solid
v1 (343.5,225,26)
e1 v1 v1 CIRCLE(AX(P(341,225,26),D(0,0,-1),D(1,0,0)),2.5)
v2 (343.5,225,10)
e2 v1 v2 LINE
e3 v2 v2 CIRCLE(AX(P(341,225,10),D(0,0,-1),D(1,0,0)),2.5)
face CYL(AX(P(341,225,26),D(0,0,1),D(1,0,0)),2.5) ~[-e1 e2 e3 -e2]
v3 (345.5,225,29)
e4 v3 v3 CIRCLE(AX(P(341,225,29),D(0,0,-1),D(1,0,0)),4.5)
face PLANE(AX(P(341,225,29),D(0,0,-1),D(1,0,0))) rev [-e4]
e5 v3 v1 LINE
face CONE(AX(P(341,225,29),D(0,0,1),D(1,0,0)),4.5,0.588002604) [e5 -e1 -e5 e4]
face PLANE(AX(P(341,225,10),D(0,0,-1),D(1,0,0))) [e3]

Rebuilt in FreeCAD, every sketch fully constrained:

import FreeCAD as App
import Part
import Sketcher
from FreeCAD import Vector

doc = App.newDocument("Part")
body = doc.addObject("PartDesign::Body", "Body")

# Sketch on XZ plane
sketch1 = body.newObject("Sketcher::SketchObject", "Sketch")
sketch1.AttachmentSupport = (doc.getObject("XZ_Plane"), [""])
sketch1.MapMode = "FlatFace"
sketch1.addGeometry(Part.LineSegment(Vector(0, -3, 0), Vector(4.5, -3, 0)), False)
sketch1.addGeometry(Part.LineSegment(Vector(4.5, -3, 0), Vector(2.5, 0, 0)), False)
sketch1.addGeometry(Part.LineSegment(Vector(2.5, 0, 0), Vector(0, 0, 0)), False)
sketch1.addGeometry(Part.LineSegment(Vector(0, 0, 0), Vector(0, -3, 0)), False)
sketch1.addConstraint(Sketcher.Constraint("Coincident", 0, 2, 1, 1))
sketch1.addConstraint(Sketcher.Constraint("Coincident", 1, 2, 2, 1))
sketch1.addConstraint(Sketcher.Constraint("Coincident", 2, 2, 3, 1))
sketch1.addConstraint(Sketcher.Constraint("Coincident", 3, 2, 0, 1))
sketch1.addConstraint(Sketcher.Constraint("Horizontal", 0))
sketch1.addConstraint(Sketcher.Constraint("Horizontal", 2))
sketch1.addConstraint(Sketcher.Constraint("Vertical", 3))
sketch1.addConstraint(Sketcher.Constraint("Coincident", 2, 2, -1, 1))
sketch1.addConstraint(Sketcher.Constraint("DistanceY", 3, 2, 3, 1, 3.0))
sketch1.addConstraint(Sketcher.Constraint("DistanceX", 0, 1, 0, 2, 4.5))
sketch1.addConstraint(Sketcher.Constraint("DistanceX", 2, 2, 2, 1, 2.5))
revolution = body.newObject("PartDesign::Revolution", "Revolution")
revolution.Profile = sketch1
revolution.ReferenceAxis = (sketch1, ["V_Axis"])
revolution.Angle = 360
body2 = doc.addObject("PartDesign::Body", "Body001")

# Sketch on XY plane
sketch2 = body2.newObject("Sketcher::SketchObject", "Sketch001")
sketch2.AttachmentSupport = (doc.getObject("XY_Plane001"), [""])
sketch2.MapMode = "FlatFace"
sketch2.addGeometry(Part.Circle(Vector(0, 0, 0), Vector(0, 0, 1), 2.5), False)
sketch2.addConstraint(Sketcher.Constraint("Coincident", 0, 3, -1, 1))
sketch2.addConstraint(Sketcher.Constraint("Diameter", 0, 5.0))
pad1 = body2.newObject("PartDesign::Pad", "Pad")
pad1.Profile = sketch2
pad1.Length = 16
doc.recompute()

boolean = body2.newObject("PartDesign::Boolean", "Boolean")
boolean.Type = "Fuse"
boolean.addObjects([body])
body3 = doc.addObject("PartDesign::Body", "Body002")
doc.recompute()

body2.Placement = App.Placement(Vector(45, 15, 21), App.Rotation(Vector(0, 1, 0), 180))
boolean2 = body3.newObject("PartDesign::Boolean", "Boolean001")
boolean2.Type = "Fuse"
boolean2.addObjects([body2])
body4 = doc.addObject("PartDesign::Body", "Body003")
doc.recompute()

body3.Placement = App.Placement(Vector(90, 270, 0), App.Rotation(Vector(0, 0, 1), 180))
boolean3 = body4.newObject("PartDesign::Boolean", "Boolean002")
boolean3.Type = "Fuse"
boolean3.addObjects([body3])
body5 = doc.addObject("PartDesign::Body", "Body004")
doc.recompute()

body4.Placement = App.Placement(Vector(270, 0, 0), App.Rotation(Vector(0, 0, 1), 0))
boolean4 = body5.newObject("PartDesign::Boolean", "Boolean003")
boolean4.Type = "Fuse"
boolean4.addObjects([body4])
body6 = doc.addObject("PartDesign::Body", "Body005")
doc.recompute()

body5.Placement = App.Placement(Vector(26, -30, 5), App.Rotation(Vector(0, 0, 1), 0))
boolean5 = body6.newObject("PartDesign::Boolean", "Boolean004")
boolean5.Type = "Fuse"
boolean5.addObjects([body5])

doc.recompute()
